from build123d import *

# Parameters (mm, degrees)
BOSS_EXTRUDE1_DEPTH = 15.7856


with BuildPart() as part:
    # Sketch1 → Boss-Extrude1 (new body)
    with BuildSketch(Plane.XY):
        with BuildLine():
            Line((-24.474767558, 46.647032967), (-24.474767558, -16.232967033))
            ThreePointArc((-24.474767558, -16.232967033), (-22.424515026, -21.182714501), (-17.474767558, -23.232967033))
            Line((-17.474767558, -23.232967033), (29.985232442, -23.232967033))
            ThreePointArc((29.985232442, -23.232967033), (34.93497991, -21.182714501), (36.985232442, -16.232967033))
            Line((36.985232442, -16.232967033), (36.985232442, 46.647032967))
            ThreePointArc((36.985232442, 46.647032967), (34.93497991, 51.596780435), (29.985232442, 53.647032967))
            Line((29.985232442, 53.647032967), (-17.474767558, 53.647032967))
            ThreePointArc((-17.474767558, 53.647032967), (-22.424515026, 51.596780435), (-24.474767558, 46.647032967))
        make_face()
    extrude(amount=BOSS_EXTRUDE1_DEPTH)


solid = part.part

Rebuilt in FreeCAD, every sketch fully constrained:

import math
import FreeCAD as App
import Part
import Sketcher

V = App.Vector
Q = App.Units.Quantity

doc = App.newDocument("Part")
body = doc.addObject("PartDesign::Body", "Body")

sketch1 = body.newObject("Sketcher::SketchObject", "Sketch")
sketch1.AttachmentSupport = (doc.getObject("XY_Plane"), [""])
sketch1.MapMode = "FlatFace"
sketch1.addGeometry([
    Part.LineSegment(V(-24, 47, 0), V(-24, -16, 0)),
    Part.ArcOfCircle(Part.Circle(V(-17, -16, 0), V(0, 0, 1), 7), math.radians(-180), math.radians(-90)),
    Part.LineSegment(V(-17, -23, 0), V(30, -23, 0)),
    Part.ArcOfCircle(Part.Circle(V(30, -16, 0), V(0, 0, 1), 7), math.radians(-90), math.radians(0)),
    Part.LineSegment(V(37, -16, 0), V(37, 47, 0)),
    Part.ArcOfCircle(Part.Circle(V(30, 47, 0), V(0, 0, 1), 7), math.radians(0), math.radians(90)),
    Part.LineSegment(V(30, 54, 0), V(-17, 54, 0)),
    Part.ArcOfCircle(Part.Circle(V(-17, 47, 0), V(0, 0, 1), 7), math.radians(90), math.radians(180)),
], False)
sketch1.addConstraint([
    Sketcher.Constraint("Tangent", 0, 2, 1, 1),
    Sketcher.Constraint("Tangent", 1, 2, 2, 1),
    Sketcher.Constraint("Tangent", 2, 2, 3, 1),
    Sketcher.Constraint("Tangent", 3, 2, 4, 1),
    Sketcher.Constraint("Tangent", 4, 2, 5, 1),
    Sketcher.Constraint("Tangent", 5, 2, 6, 1),
    Sketcher.Constraint("Tangent", 6, 2, 7, 1),
    Sketcher.Constraint("Tangent", 7, 2, 0, 1),
    Sketcher.Constraint("Vertical", 0),
    Sketcher.Constraint("Horizontal", 2),
    Sketcher.Constraint("Vertical", 4),
    Sketcher.Constraint("Horizontal", 6),
    Sketcher.Constraint("Equal", 1, 3),
    Sketcher.Constraint("Equal", 3, 5),
    Sketcher.Constraint("Equal", 5, 7),
    Sketcher.Constraint("Radius", 1, Q("7 mm")),
    Sketcher.Constraint("DistanceX", 2, 1, 2, 2, Q("47.46 mm")),
    Sketcher.Constraint("DistanceY", 0, 2, 0, 1, Q("62.88 mm")),
    Sketcher.Constraint("DistanceX", 1, 3, -1, 1, Q("17.474768 mm")),
    Sketcher.Constraint("DistanceY", 1, 3, -1, 1, Q("16.232967 mm")),
])
pad1 = body.newObject("PartDesign::Pad", "Pad")
pad1.Profile = sketch1
pad1.Length = 15.7856

doc.recompute()
